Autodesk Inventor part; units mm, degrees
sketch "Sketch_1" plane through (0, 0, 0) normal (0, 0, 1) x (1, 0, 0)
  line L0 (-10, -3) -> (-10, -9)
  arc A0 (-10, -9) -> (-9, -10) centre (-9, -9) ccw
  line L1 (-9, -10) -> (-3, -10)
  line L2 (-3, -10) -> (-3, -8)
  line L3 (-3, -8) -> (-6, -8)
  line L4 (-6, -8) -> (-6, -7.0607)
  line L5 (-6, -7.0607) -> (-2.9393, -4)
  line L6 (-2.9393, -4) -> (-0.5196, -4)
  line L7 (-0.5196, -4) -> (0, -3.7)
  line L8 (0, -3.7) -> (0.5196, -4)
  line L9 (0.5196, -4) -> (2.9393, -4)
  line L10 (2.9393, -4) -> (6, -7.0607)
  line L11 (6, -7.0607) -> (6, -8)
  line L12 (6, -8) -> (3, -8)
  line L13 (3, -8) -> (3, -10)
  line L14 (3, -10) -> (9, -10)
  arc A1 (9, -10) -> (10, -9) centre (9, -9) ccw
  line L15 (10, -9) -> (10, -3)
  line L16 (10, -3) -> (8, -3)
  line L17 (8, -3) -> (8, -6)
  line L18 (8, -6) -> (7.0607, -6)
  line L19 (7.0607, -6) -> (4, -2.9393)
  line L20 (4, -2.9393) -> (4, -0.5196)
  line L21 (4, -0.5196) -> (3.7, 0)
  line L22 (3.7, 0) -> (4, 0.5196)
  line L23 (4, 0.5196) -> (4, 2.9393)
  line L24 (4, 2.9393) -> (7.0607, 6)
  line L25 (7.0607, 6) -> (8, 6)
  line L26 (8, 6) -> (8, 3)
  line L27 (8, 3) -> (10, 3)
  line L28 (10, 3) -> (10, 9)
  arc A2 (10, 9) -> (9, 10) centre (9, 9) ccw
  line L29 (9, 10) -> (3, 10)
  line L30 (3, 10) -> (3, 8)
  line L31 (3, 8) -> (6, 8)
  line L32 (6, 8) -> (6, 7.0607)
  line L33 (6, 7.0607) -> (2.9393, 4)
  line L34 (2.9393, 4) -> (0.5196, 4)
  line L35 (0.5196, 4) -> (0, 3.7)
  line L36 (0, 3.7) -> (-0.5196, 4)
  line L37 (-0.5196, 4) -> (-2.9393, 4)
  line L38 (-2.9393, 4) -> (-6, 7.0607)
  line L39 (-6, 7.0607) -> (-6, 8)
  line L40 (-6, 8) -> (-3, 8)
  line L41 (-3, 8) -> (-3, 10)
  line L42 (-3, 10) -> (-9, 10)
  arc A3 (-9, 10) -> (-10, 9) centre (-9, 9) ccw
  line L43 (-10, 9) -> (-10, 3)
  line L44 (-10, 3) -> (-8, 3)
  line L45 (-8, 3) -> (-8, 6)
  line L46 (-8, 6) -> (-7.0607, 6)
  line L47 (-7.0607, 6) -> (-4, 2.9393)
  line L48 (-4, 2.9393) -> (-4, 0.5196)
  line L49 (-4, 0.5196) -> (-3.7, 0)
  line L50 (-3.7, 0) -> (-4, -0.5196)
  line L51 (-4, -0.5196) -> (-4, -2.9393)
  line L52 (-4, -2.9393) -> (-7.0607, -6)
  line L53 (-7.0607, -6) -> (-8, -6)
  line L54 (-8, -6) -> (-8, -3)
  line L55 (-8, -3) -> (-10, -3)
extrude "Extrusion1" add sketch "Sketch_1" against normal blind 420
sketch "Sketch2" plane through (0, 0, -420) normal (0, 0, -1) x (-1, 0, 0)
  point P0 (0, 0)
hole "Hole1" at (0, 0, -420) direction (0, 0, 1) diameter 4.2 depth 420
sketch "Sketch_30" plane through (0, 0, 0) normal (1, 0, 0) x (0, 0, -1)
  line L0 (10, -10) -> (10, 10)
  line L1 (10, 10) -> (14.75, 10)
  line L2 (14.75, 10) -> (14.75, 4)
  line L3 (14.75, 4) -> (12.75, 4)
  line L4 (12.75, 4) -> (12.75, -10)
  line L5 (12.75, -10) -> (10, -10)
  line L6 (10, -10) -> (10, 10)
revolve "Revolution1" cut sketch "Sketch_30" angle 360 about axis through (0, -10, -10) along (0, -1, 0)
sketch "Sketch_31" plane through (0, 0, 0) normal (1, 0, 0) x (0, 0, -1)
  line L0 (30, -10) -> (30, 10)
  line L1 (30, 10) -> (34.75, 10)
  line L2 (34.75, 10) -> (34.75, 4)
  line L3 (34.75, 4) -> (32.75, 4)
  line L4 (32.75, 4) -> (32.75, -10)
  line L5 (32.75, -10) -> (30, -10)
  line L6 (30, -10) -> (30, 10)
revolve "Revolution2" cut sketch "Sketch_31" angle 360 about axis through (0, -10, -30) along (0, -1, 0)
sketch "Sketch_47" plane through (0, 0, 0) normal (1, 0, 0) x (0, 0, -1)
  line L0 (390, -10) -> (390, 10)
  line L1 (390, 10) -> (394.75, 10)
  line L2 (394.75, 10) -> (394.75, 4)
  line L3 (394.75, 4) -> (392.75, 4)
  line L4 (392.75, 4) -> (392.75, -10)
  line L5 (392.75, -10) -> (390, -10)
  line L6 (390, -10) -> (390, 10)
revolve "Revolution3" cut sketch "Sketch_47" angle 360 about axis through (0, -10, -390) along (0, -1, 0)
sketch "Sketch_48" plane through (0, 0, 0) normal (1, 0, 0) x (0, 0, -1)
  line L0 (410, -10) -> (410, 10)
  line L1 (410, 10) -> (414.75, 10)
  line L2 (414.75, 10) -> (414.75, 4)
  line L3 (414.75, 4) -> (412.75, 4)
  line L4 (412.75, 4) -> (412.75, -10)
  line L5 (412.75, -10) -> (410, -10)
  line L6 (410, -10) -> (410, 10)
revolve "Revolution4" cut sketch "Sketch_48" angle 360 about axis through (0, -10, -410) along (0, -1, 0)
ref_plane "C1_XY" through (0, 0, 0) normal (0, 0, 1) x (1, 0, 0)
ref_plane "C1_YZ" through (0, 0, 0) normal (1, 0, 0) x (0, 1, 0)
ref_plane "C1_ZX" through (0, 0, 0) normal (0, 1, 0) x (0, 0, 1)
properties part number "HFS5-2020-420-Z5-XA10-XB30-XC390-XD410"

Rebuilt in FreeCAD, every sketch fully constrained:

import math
import FreeCAD as App
import Part
import Sketcher

V = App.Vector
Q = App.Units.Quantity


def add_polygon(sketch, points):
    """Adds a closed chain of lines whose ends are joined by coincident constraints."""
    first, n = sketch.GeometryCount, len(points)
    for a, b in zip(points, points[1:] + points[:1]):
        sketch.addGeometry(Part.LineSegment(App.Vector(*a, 0), App.Vector(*b, 0)), False)
    for i in range(n):
        sketch.addConstraint(Sketcher.Constraint("Coincident", first + i, 2, first + (i + 1) % n, 1))

doc = App.newDocument("Part")
params = doc.addObject("Spreadsheet::Sheet", "Params")
for row, (alias, value) in enumerate([
    ("sketch1_radius", "1 mm"),
    ("sketch1_width", "2 mm"),
    ("sketch1_width2", "6 mm"),
    ("sketch1_width3", "3 mm"),
    ("sketch1_length", "0.6 mm"),
    ("pad1_length", "420 mm"),
    ("sketch2_diameter", "4.2 mm"),
    ("hole_diameter", "4.2 mm"),
    ("hole_depth", "420 mm"),
    ("sketch3_width", "20 mm"),
    ("sketch3_width2", "14 mm"),
    ("sketch3_height", "2 mm"),
    ("sketch3_height2", "2.75 mm"),
    ("groove_angle", "360 deg"),
    ("sketch4_width", "20 mm"),
    ("sketch4_width2", "14 mm"),
    ("sketch4_height", "2 mm"),
    ("sketch4_height2", "2.75 mm"),
    ("groove2_angle", "360 deg"),
    ("sketch5_width", "20 mm"),
    ("sketch5_width2", "14 mm"),
    ("sketch5_height", "2 mm"),
    ("sketch5_height2", "2.75 mm"),
    ("groove3_angle", "360 deg"),
    ("sketch6_width", "20 mm"),
    ("sketch6_width2", "14 mm"),
    ("sketch6_height", "2 mm"),
    ("sketch6_height2", "2.75 mm"),
    ("groove4_angle", "360 deg"),
], start=1):
    params.set(f"A{row}", alias)
    params.set(f"B{row}", "=" + value)
    params.setAlias(f"B{row}", alias)

body = doc.addObject("PartDesign::Body", "Body")

# Sketch on XY plane
sketch1 = body.newObject("Sketcher::SketchObject", "Sketch")
sketch1.AttachmentSupport = (doc.getObject("XY_Plane"), [""])
sketch1.MapMode = "FlatFace"
sketch1.addGeometry([
    Part.LineSegment(V(-8, -3, 0), V(-10, -3, 0)),  # 0
    Part.LineSegment(V(-10, -3, 0), V(-10, -9, 0)),  # 1
    Part.ArcOfCircle(Part.Circle(V(-9, -9, 0), V(0, 0, 1), 1), math.radians(180), math.radians(270)),  # 2
    Part.LineSegment(V(-9, -10, 0), V(-3, -10, 0)),  # 3
    Part.LineSegment(V(-3, -10, 0), V(-3, -8, 0)),  # 4
    Part.LineSegment(V(-3, -8, 0), V(-6, -8, 0)),  # 5
    Part.LineSegment(V(-6, -8, 0), V(-6, -7.0607, 0)),  # 6
    Part.LineSegment(V(-6, -7.0607, 0), V(-2.9393, -4, 0)),  # 7
    Part.LineSegment(V(-2.9393, -4, 0), V(-0.5196, -4, 0)),  # 8
    Part.LineSegment(V(-0.5196, -4, 0), V(0, -3.7, 0)),  # 9
    Part.LineSegment(V(0, -3.7, 0), V(0.5196, -4, 0)),  # 10
    Part.LineSegment(V(0.5196, -4, 0), V(2.9393, -4, 0)),  # 11
    Part.LineSegment(V(2.9393, -4, 0), V(6, -7.0607, 0)),  # 12
    Part.LineSegment(V(6, -7.0607, 0), V(6, -8, 0)),  # 13
    Part.LineSegment(V(6, -8, 0), V(3, -8, 0)),  # 14
    Part.LineSegment(V(3, -8, 0), V(3, -10, 0)),  # 15
    Part.LineSegment(V(3, -10, 0), V(9, -10, 0)),  # 16
    Part.ArcOfCircle(Part.Circle(V(9, -9, 0), V(0, 0, 1), 1), math.radians(-90), math.radians(0)),  # 17
    Part.LineSegment(V(10, -9, 0), V(10, -3, 0)),  # 18
    Part.LineSegment(V(10, -3, 0), V(8, -3, 0)),  # 19
    Part.LineSegment(V(8, -3, 0), V(8, -6, 0)),  # 20
    Part.LineSegment(V(8, -6, 0), V(7.0607, -6, 0)),  # 21
    Part.LineSegment(V(7.0607, -6, 0), V(4, -2.9393, 0)),  # 22
    Part.LineSegment(V(4, -2.9393, 0), V(4, -0.5196, 0)),  # 23
    Part.LineSegment(V(4, -0.5196, 0), V(3.7, 0, 0)),  # 24
    Part.LineSegment(V(3.7, 0, 0), V(4, 0.5196, 0)),  # 25
    Part.LineSegment(V(4, 0.5196, 0), V(4, 2.9393, 0)),  # 26
    Part.LineSegment(V(4, 2.9393, 0), V(7.0607, 6, 0)),  # 27
    Part.LineSegment(V(7.0607, 6, 0), V(8, 6, 0)),  # 28
    Part.LineSegment(V(8, 6, 0), V(8, 3, 0)),  # 29
    Part.LineSegment(V(8, 3, 0), V(10, 3, 0)),  # 30
    Part.LineSegment(V(10, 3, 0), V(10, 9, 0)),  # 31
    Part.ArcOfCircle(Part.Circle(V(9, 9, 0), V(0, 0, 1), 1), math.radians(0), math.radians(90)),  # 32
    Part.LineSegment(V(9, 10, 0), V(3, 10, 0)),  # 33
    Part.LineSegment(V(3, 10, 0), V(3, 8, 0)),  # 34
    Part.LineSegment(V(3, 8, 0), V(6, 8, 0)),  # 35
    Part.LineSegment(V(6, 8, 0), V(6, 7.0607, 0)),  # 36
    Part.LineSegment(V(6, 7.0607, 0), V(2.9393, 4, 0)),  # 37
    Part.LineSegment(V(2.9393, 4, 0), V(0.5196, 4, 0)),  # 38
    Part.LineSegment(V(0.5196, 4, 0), V(0, 3.7, 0)),  # 39
    Part.LineSegment(V(0, 3.7, 0), V(-0.5196, 4, 0)),  # 40
    Part.LineSegment(V(-0.5196, 4, 0), V(-2.9393, 4, 0)),  # 41
    Part.LineSegment(V(-2.9393, 4, 0), V(-6, 7.0607, 0)),  # 42
    Part.LineSegment(V(-6, 7.0607, 0), V(-6, 8, 0)),  # 43
    Part.LineSegment(V(-6, 8, 0), V(-3, 8, 0)),  # 44
    Part.LineSegment(V(-3, 8, 0), V(-3, 10, 0)),  # 45
    Part.LineSegment(V(-3, 10, 0), V(-9, 10, 0)),  # 46
    Part.ArcOfCircle(Part.Circle(V(-9, 9, 0), V(0, 0, 1), 1), math.radians(90), math.radians(180)),  # 47
    Part.LineSegment(V(-10, 9, 0), V(-10, 3, 0)),  # 48
    Part.LineSegment(V(-10, 3, 0), V(-8, 3, 0)),  # 49
    Part.LineSegment(V(-8, 3, 0), V(-8, 6, 0)),  # 50
    Part.LineSegment(V(-8, 6, 0), V(-7.0607, 6, 0)),  # 51
    Part.LineSegment(V(-7.0607, 6, 0), V(-4, 2.9393, 0)),  # 52
    Part.LineSegment(V(-4, 2.9393, 0), V(-4, 0.5196, 0)),  # 53
    Part.LineSegment(V(-4, 0.5196, 0), V(-3.7, 0, 0)),  # 54
    Part.LineSegment(V(-3.7, 0, 0), V(-4, -0.5196, 0)),  # 55
    Part.LineSegment(V(-4, -0.5196, 0), V(-4, -2.9393, 0)),  # 56
    Part.LineSegment(V(-4, -2.9393, 0), V(-7.0607, -6, 0)),  # 57
    Part.LineSegment(V(-7.0607, -6, 0), V(-8, -6, 0)),  # 58
    Part.LineSegment(V(-8, -6, 0), V(-8, -3, 0)),  # 59
], False)
sketch1.addConstraint([
    Sketcher.Constraint("Coincident", 0, 2, 1, 1),
    Sketcher.Constraint("Tangent", 1, 2, 2, 1),
    Sketcher.Constraint("Tangent", 2, 2, 3, 1),
    Sketcher.Constraint("Coincident", 3, 2, 4, 1),
    Sketcher.Constraint("Coincident", 4, 2, 5, 1),
    Sketcher.Constraint("Coincident", 5, 2, 6, 1),
    Sketcher.Constraint("Coincident", 6, 2, 7, 1),
    Sketcher.Constraint("Coincident", 7, 2, 8, 1),
    Sketcher.Constraint("Coincident", 8, 2, 9, 1),
    Sketcher.Constraint("Coincident", 9, 2, 10, 1),
    Sketcher.Constraint("Coincident", 10, 2, 11, 1),
    Sketcher.Constraint("Coincident", 11, 2, 12, 1),
    Sketcher.Constraint("Coincident", 12, 2, 13, 1),
    Sketcher.Constraint("Coincident", 13, 2, 14, 1),
    Sketcher.Constraint("Coincident", 14, 2, 15, 1),
    Sketcher.Constraint("Coincident", 15, 2, 16, 1),
    Sketcher.Constraint("Tangent", 16, 2, 17, 1),
    Sketcher.Constraint("Tangent", 17, 2, 18, 1),
    Sketcher.Constraint("Coincident", 18, 2, 19, 1),
    Sketcher.Constraint("Coincident", 19, 2, 20, 1),
    Sketcher.Constraint("Coincident", 20, 2, 21, 1),
    Sketcher.Constraint("Coincident", 21, 2, 22, 1),
    Sketcher.Constraint("Coincident", 22, 2, 23, 1),
    Sketcher.Constraint("Coincident", 23, 2, 24, 1),
    Sketcher.Constraint("Coincident", 24, 2, 25, 1),
    Sketcher.Constraint("Coincident", 25, 2, 26, 1),
    Sketcher.Constraint("Coincident", 26, 2, 27, 1),
    Sketcher.Constraint("Coincident", 27, 2, 28, 1),
    Sketcher.Constraint("Coincident", 28, 2, 29, 1),
    Sketcher.Constraint("Coincident", 29, 2, 30, 1),
    Sketcher.Constraint("Coincident", 30, 2, 31, 1),
    Sketcher.Constraint("Tangent", 31, 2, 32, 1),
    Sketcher.Constraint("Tangent", 32, 2, 33, 1),
    Sketcher.Constraint("Coincident", 33, 2, 34, 1),
    Sketcher.Constraint("Coincident", 34, 2, 35, 1),
    Sketcher.Constraint("Coincident", 35, 2, 36, 1),
    Sketcher.Constraint("Coincident", 36, 2, 37, 1),
    Sketcher.Constraint("Coincident", 37, 2, 38, 1),
    Sketcher.Constraint("Coincident", 38, 2, 39, 1),
    Sketcher.Constraint("Coincident", 39, 2, 40, 1),
    Sketcher.Constraint("Coincident", 40, 2, 41, 1),
    Sketcher.Constraint("Coincident", 41, 2, 42, 1),
    Sketcher.Constraint("Coincident", 42, 2, 43, 1),
    Sketcher.Constraint("Coincident", 43, 2, 44, 1),
    Sketcher.Constraint("Coincident", 44, 2, 45, 1),
    Sketcher.Constraint("Coincident", 45, 2, 46, 1),
    Sketcher.Constraint("Tangent", 46, 2, 47, 1),
    Sketcher.Constraint("Tangent", 47, 2, 48, 1),
    Sketcher.Constraint("Coincident", 48, 2, 49, 1),
    Sketcher.Constraint("Coincident", 49, 2, 50, 1),
    Sketcher.Constraint("Coincident", 50, 2, 51, 1),
    Sketcher.Constraint("Coincident", 51, 2, 52, 1),
    Sketcher.Constraint("Coincident", 52, 2, 53, 1),
    Sketcher.Constraint("Coincident", 53, 2, 54, 1),
    Sketcher.Constraint("Coincident", 54, 2, 55, 1),
    Sketcher.Constraint("Coincident", 55, 2, 56, 1),
    Sketcher.Constraint("Coincident", 56, 2, 57, 1),
    Sketcher.Constraint("Coincident", 57, 2, 58, 1),
    Sketcher.Constraint("Coincident", 58, 2, 59, 1),
    Sketcher.Constraint("Coincident", 59, 2, 0, 1),
    Sketcher.Constraint("Horizontal", 0),
    Sketcher.Constraint("Vertical", 1),
    Sketcher.Constraint("Horizontal", 3),
    Sketcher.Constraint("Vertical", 4),
    Sketcher.Constraint("Horizontal", 5),
    Sketcher.Constraint("Vertical", 6),
    Sketcher.Constraint("Horizontal", 8),
    Sketcher.Constraint("Horizontal", 11),
    Sketcher.Constraint("Vertical", 13),
    Sketcher.Constraint("Horizontal", 14),
    Sketcher.Constraint("Vertical", 15),
    Sketcher.Constraint("Horizontal", 16),
    Sketcher.Constraint("Vertical", 18),
    Sketcher.Constraint("Horizontal", 19),
    Sketcher.Constraint("Vertical", 20),
    Sketcher.Constraint("Horizontal", 21),
    Sketcher.Constraint("Vertical", 23),
    Sketcher.Constraint("Vertical", 26),
    Sketcher.Constraint("Horizontal", 28),
    Sketcher.Constraint("Vertical", 29),
    Sketcher.Constraint("Horizontal", 30),
    Sketcher.Constraint("Vertical", 31),
    Sketcher.Constraint("Horizontal", 33),
    Sketcher.Constraint("Vertical", 34),
    Sketcher.Constraint("Horizontal", 35),
    Sketcher.Constraint("Vertical", 36),
    Sketcher.Constraint("Horizontal", 38),
    Sketcher.Constraint("Horizontal", 41),
    Sketcher.Constraint("Vertical", 43),
    Sketcher.Constraint("Horizontal", 44),
    Sketcher.Constraint("Vertical", 45),
    Sketcher.Constraint("Horizontal", 46),
    Sketcher.Constraint("Vertical", 48),
    Sketcher.Constraint("Horizontal", 49),
    Sketcher.Constraint("Vertical", 50),
    Sketcher.Constraint("Horizontal", 51),
    Sketcher.Constraint("Vertical", 53),
    Sketcher.Constraint("Vertical", 56),
    Sketcher.Constraint("Horizontal", 58),
    Sketcher.Constraint("Vertical", 59),
    Sketcher.Constraint("Equal", 2, 17),
    Sketcher.Constraint("Equal", 17, 32),
    Sketcher.Constraint("Equal", 32, 47),
    Sketcher.Constraint("Symmetric", 2, 3, 32, 3, -1, 1),
    Sketcher.Constraint("Symmetric", 17, 3, 47, 3, -1, 1),
    Sketcher.Constraint("Symmetric", 4, 2, 34, 2, -1, 1),
    Sketcher.Constraint("Symmetric", 6, 2, 36, 2, -1, 1),
    Sketcher.Constraint("Symmetric", 7, 2, 37, 2, -1, 1),
    Sketcher.Constraint("Symmetric", 9, 2, 39, 2, -1, 1),
    Sketcher.Constraint("Symmetric", 10, 2, 40, 2, -1, 1),
    Sketcher.Constraint("Symmetric", 12, 2, 42, 2, -1, 1),
    Sketcher.Constraint("Symmetric", 14, 2, 44, 2, -1, 1),
    Sketcher.Constraint("Symmetric", 19, 2, 49, 2, -1, 1),
    Sketcher.Constraint("Symmetric", 21, 2, 51, 2, -1, 1),
    Sketcher.Constraint("Symmetric", 22, 2, 52, 2, -1, 1),
    Sketcher.Constraint("Symmetric", 24, 2, 54, 2, -1, 1),
    Sketcher.Constraint("Symmetric", 25, 2, 55, 2, -1, 1),
    Sketcher.Constraint("Symmetric", 27, 2, 57, 2, -1, 1),
    Sketcher.Constraint("Symmetric", 29, 2, 59, 2, -1, 1),
    Sketcher.Constraint("Symmetric", 2, 3, 17, 3, -2),
    Sketcher.Constraint("Symmetric", 8, 2, 10, 2, -2),
    Sketcher.Constraint("Symmetric", 6, 2, 12, 2, -2),
    Sketcher.Constraint("Symmetric", 4, 2, 14, 2, -2),
    Sketcher.Constraint("Symmetric", 29, 2, 49, 2, -2),
    Sketcher.Constraint("Symmetric", 27, 2, 51, 2, -2),
    Sketcher.Constraint("Symmetric", 26, 2, 52, 2, -2),
    Sketcher.Constraint("PointOnObject", 9, 2, -2),
    Sketcher.Constraint("PointOnObject", 24, 2, -1),
    Sketcher.Constraint("Perpendicular", 7, 12),
    Sketcher.Constraint("Parallel", 12, 22),
    Sketcher.Constraint("Perpendicular", 9, 24),
    Sketcher.Constraint("Perpendicular", 10, 25),
    Sketcher.Constraint("Perpendicular", 22, 27),
    Sketcher.Constraint("Perpendicular", 24, 39),
    Sketcher.Constraint("Perpendicular", 37, 42),
    Sketcher.Constraint("Perpendicular", 39, 54),
    Sketcher.Constraint("Perpendicular", 52, 57),
    Sketcher.Constraint("Equal", 46, 1),
    Sketcher.Constraint("Equal", 49, 4),
    Sketcher.Constraint("Equal", 58, 6),
    Sketcher.Constraint("Equal", 44, 20),
    Sketcher.Constraint("Equal", 41, 23),
    Sketcher.Constraint("Equal", 12, 22),
    Sketcher.Constraint("Equal", 10, 24),
    Sketcher.Constraint("Radius", 2, 1.0),
    Sketcher.Constraint("DistanceX", 0, 2, 0, 1, 2.0),
    Sketcher.Constraint("DistanceX", 3, 1, 3, 2, 6.0),
    Sketcher.Constraint("DistanceX", 5, 2, 5, 1, 3.0),
    Sketcher.Constraint("Angle", 9, Q("30.0007 deg")),
    Sketcher.Constraint("DistanceX", 2, 3, -1, 1, 9.0),
    Sketcher.Constraint("DistanceY", 7, 2, -1, 1, 4.0),
    Sketcher.Constraint("Distance", 9, 0.6),
    Sketcher.Constraint("DistanceX", 8, 1, 8, 2, 2.4197),
])
sketch1.setExpression("Constraints[144]", "Params.sketch1_radius")
sketch1.setExpression("Constraints[145]", "Params.sketch1_width")
sketch1.setExpression("Constraints[146]", "Params.sketch1_width2")
sketch1.setExpression("Constraints[147]", "Params.sketch1_width3")
sketch1.setExpression("Constraints[151]", "Params.sketch1_length")
pad1 = body.newObject("PartDesign::Pad", "Pad")
pad1.Profile = sketch1
pad1.setExpression("Length", "Params.pad1_length")
pad1.Reversed = True

# Sketch on XY plane
sketch2 = body.newObject("Sketcher::SketchObject", "Sketch001")
sketch2.AttachmentSupport = (doc.getObject("XY_Plane"), [""])
sketch2.MapMode = "FlatFace"
sketch2.AttachmentOffset = App.Placement(V(0, 0, -420), App.Rotation())
sketch2.addGeometry(Part.Circle(V(0, 0, 0), V(0, 0, 1), 2.1), False)
sketch2.addConstraint([
    Sketcher.Constraint("Coincident", 0, 3, -1, 1),
    Sketcher.Constraint("Diameter", 0, 4.2),
])
sketch2.setExpression("Constraints[1]", "Params.sketch2_diameter")
doc.recompute()
hole = body.newObject("PartDesign::Hole", "Hole")
hole.Profile = sketch2
hole.ThreadType = "None"
hole.setExpression("Diameter", "Params.hole_diameter")
hole.DepthType = "Dimension"
hole.setExpression("Depth", "Params.hole_depth")
hole.DrillPoint = "Flat"
hole.Reversed = True

# Sketch on YZ plane
sketch3 = body.newObject("Sketcher::SketchObject", "Sketch002")
sketch3.AttachmentSupport = (doc.getObject("YZ_Plane"), [""])
sketch3.MapMode = "FlatFace"
add_polygon(sketch3, [(10, -10), (-10, -10), (-10, -12.75), (4, -12.75), (4, -14.75), (10, -14.75)])  # lines 0-5
sketch3.addGeometry(Part.LineSegment(V(10, -10, 0), V(-10, -10, 0)), True)  # axis
sketch3.addConstraint([
    Sketcher.Constraint("Horizontal", 0),
    Sketcher.Constraint("Vertical", 1),
    Sketcher.Constraint("Horizontal", 2),
    Sketcher.Constraint("Vertical", 3),
    Sketcher.Constraint("Horizontal", 4),
    Sketcher.Constraint("Vertical", 5),
    Sketcher.Constraint("Horizontal", 6),
    Sketcher.Constraint("Coincident", 6, 1, 5, 2),
    Sketcher.Constraint("Vertical", 1, 2, 6, 2),
    Sketcher.Constraint("DistanceX", 0, 2, 0, 1, 20.0),
    Sketcher.Constraint("DistanceX", 2, 1, 2, 2, 14.0),
    Sketcher.Constraint("DistanceY", 3, 2, 3, 1, 2.0),
    Sketcher.Constraint("DistanceX", 0, 2, -1, 1, 10.0),
    Sketcher.Constraint("DistanceY", 0, 2, -1, 1, 10.0),
    Sketcher.Constraint("DistanceY", 1, 2, 1, 1, 2.75),
])
sketch3.setExpression("Constraints[15]", "Params.sketch3_width")
sketch3.setExpression("Constraints[16]", "Params.sketch3_width2")
sketch3.setExpression("Constraints[17]", "Params.sketch3_height")
sketch3.setExpression("Constraints[20]", "Params.sketch3_height2")
groove = body.newObject("PartDesign::Groove", "Groove")
groove.Profile = sketch3
groove.ReferenceAxis = (sketch3, ["Axis0"])
groove.setExpression("Angle", "Params.groove_angle")

# Sketch on YZ plane
sketch4 = body.newObject("Sketcher::SketchObject", "Sketch003")
sketch4.AttachmentSupport = (doc.getObject("YZ_Plane"), [""])
sketch4.MapMode = "FlatFace"
add_polygon(sketch4, [(10, -30), (-10, -30), (-10, -32.75), (4, -32.75), (4, -34.75), (10, -34.75)])  # lines 0-5
sketch4.addGeometry(Part.LineSegment(V(10, -30, 0), V(-10, -30, 0)), True)  # axis
sketch4.addConstraint([
    Sketcher.Constraint("Horizontal", 0),
    Sketcher.Constraint("Vertical", 1),
    Sketcher.Constraint("Horizontal", 2),
    Sketcher.Constraint("Vertical", 3),
    Sketcher.Constraint("Horizontal", 4),
    Sketcher.Constraint("Vertical", 5),
    Sketcher.Constraint("Horizontal", 6),
    Sketcher.Constraint("Coincident", 6, 1, 5, 2),
    Sketcher.Constraint("Vertical", 1, 2, 6, 2),
    Sketcher.Constraint("DistanceX", 0, 2, 0, 1, 20.0),
    Sketcher.Constraint("DistanceX", 2, 1, 2, 2, 14.0),
    Sketcher.Constraint("DistanceY", 3, 2, 3, 1, 2.0),
    Sketcher.Constraint("DistanceX", 0, 2, -1, 1, 10.0),
    Sketcher.Constraint("DistanceY", 0, 2, -1, 1, 30.0),
    Sketcher.Constraint("DistanceY", 1, 2, 1, 1, 2.75),
])
sketch4.setExpression("Constraints[15]", "Params.sketch4_width")
sketch4.setExpression("Constraints[16]", "Params.sketch4_width2")
sketch4.setExpression("Constraints[17]", "Params.sketch4_height")
sketch4.setExpression("Constraints[20]", "Params.sketch4_height2")
groove2 = body.newObject("PartDesign::Groove", "Groove001")
groove2.Profile = sketch4
groove2.ReferenceAxis = (sketch4, ["Axis0"])
groove2.setExpression("Angle", "Params.groove2_angle")

# Sketch on YZ plane
sketch5 = body.newObject("Sketcher::SketchObject", "Sketch004")
sketch5.AttachmentSupport = (doc.getObject("YZ_Plane"), [""])
sketch5.MapMode = "FlatFace"
add_polygon(sketch5, [(10, -390), (-10, -390), (-10, -392.75), (4, -392.75), (4, -394.75), (10, -394.75)])  # lines 0-5
sketch5.addGeometry(Part.LineSegment(V(10, -390, 0), V(-10, -390, 0)), True)  # axis
sketch5.addConstraint([
    Sketcher.Constraint("Horizontal", 0),
    Sketcher.Constraint("Vertical", 1),
    Sketcher.Constraint("Horizontal", 2),
    Sketcher.Constraint("Vertical", 3),
    Sketcher.Constraint("Horizontal", 4),
    Sketcher.Constraint("Vertical", 5),
    Sketcher.Constraint("Horizontal", 6),
    Sketcher.Constraint("Coincident", 6, 1, 5, 2),
    Sketcher.Constraint("Vertical", 1, 2, 6, 2),
    Sketcher.Constraint("DistanceX", 0, 2, 0, 1, 20.0),
    Sketcher.Constraint("DistanceX", 2, 1, 2, 2, 14.0),
    Sketcher.Constraint("DistanceY", 3, 2, 3, 1, 2.0),
    Sketcher.Constraint("DistanceX", 0, 2, -1, 1, 10.0),
    Sketcher.Constraint("DistanceY", 0, 2, -1, 1, 390.0),
    Sketcher.Constraint("DistanceY", 1, 2, 1, 1, 2.75),
])
sketch5.setExpression("Constraints[15]", "Params.sketch5_width")
sketch5.setExpression("Constraints[16]", "Params.sketch5_width2")
sketch5.setExpression("Constraints[17]", "Params.sketch5_height")
sketch5.setExpression("Constraints[20]", "Params.sketch5_height2")
groove3 = body.newObject("PartDesign::Groove", "Groove002")
groove3.Profile = sketch5
groove3.ReferenceAxis = (sketch5, ["Axis0"])
groove3.setExpression("Angle", "Params.groove3_angle")

# Sketch on YZ plane
sketch6 = body.newObject("Sketcher::SketchObject", "Sketch005")
sketch6.AttachmentSupport = (doc.getObject("YZ_Plane"), [""])
sketch6.MapMode = "FlatFace"
add_polygon(sketch6, [(10, -410), (-10, -410), (-10, -412.75), (4, -412.75), (4, -414.75), (10, -414.75)])  # lines 0-5
sketch6.addGeometry(Part.LineSegment(V(10, -410, 0), V(-10, -410, 0)), True)  # axis
sketch6.addConstraint([
    Sketcher.Constraint("Horizontal", 0),
    Sketcher.Constraint("Vertical", 1),
    Sketcher.Constraint("Horizontal", 2),
    Sketcher.Constraint("Vertical", 3),
    Sketcher.Constraint("Horizontal", 4),
    Sketcher.Constraint("Vertical", 5),
    Sketcher.Constraint("Horizontal", 6),
    Sketcher.Constraint("Coincident", 6, 1, 5, 2),
    Sketcher.Constraint("Vertical", 1, 2, 6, 2),
    Sketcher.Constraint("DistanceX", 0, 2, 0, 1, 20.0),
    Sketcher.Constraint("DistanceX", 2, 1, 2, 2, 14.0),
    Sketcher.Constraint("DistanceY", 3, 2, 3, 1, 2.0),
    Sketcher.Constraint("DistanceX", 0, 2, -1, 1, 10.0),
    Sketcher.Constraint("DistanceY", 0, 2, -1, 1, 410.0),
    Sketcher.Constraint("DistanceY", 1, 2, 1, 1, 2.75),
])
sketch6.setExpression("Constraints[15]", "Params.sketch6_width")
sketch6.setExpression("Constraints[16]", "Params.sketch6_width2")
sketch6.setExpression("Constraints[17]", "Params.sketch6_height")
sketch6.setExpression("Constraints[20]", "Params.sketch6_height2")
groove4 = body.newObject("PartDesign::Groove", "Groove003")
groove4.Profile = sketch6
groove4.ReferenceAxis = (sketch6, ["Axis0"])
groove4.setExpression("Angle", "Params.groove4_angle")

doc.recompute()
